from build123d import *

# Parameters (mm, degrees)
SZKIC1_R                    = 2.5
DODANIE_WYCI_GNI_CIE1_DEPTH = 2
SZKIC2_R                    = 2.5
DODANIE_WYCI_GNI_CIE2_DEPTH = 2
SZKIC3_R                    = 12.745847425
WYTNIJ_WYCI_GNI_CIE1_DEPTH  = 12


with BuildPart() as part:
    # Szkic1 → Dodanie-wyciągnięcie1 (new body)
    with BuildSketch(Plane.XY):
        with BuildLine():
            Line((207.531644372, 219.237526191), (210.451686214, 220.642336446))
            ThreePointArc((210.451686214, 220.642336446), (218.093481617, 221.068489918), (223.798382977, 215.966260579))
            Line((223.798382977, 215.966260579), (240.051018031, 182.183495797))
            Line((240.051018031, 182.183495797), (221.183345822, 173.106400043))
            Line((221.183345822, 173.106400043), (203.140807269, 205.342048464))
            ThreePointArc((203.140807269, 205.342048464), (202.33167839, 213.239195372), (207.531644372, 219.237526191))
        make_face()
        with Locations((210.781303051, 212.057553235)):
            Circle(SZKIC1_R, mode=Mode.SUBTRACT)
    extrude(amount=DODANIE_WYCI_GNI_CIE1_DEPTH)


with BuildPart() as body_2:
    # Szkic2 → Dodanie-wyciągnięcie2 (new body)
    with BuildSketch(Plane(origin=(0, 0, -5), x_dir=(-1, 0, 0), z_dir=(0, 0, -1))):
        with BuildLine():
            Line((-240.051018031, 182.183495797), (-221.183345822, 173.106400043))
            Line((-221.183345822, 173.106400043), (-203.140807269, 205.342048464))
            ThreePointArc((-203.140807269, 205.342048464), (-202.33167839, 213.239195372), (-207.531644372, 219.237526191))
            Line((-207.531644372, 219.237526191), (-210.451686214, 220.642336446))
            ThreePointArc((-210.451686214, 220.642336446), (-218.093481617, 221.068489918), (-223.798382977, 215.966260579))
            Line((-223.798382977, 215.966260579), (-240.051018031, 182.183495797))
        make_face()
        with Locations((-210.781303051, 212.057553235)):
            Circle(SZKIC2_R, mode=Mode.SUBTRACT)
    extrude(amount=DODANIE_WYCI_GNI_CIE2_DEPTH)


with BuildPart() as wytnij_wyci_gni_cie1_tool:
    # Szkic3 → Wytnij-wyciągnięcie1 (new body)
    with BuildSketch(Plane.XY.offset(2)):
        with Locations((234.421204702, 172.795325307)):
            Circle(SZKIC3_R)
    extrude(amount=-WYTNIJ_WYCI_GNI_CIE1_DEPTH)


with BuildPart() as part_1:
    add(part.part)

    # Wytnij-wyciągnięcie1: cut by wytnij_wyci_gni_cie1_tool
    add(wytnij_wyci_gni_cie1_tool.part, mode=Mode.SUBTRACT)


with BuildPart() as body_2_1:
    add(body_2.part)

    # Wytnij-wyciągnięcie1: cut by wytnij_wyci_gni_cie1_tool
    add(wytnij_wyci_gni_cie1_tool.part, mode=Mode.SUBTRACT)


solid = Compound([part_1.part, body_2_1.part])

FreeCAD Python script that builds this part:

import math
import FreeCAD as App
import Part
import Sketcher
Q = App.Units.Quantity

doc = App.newDocument("Part")
params = doc.addObject("Spreadsheet::Sheet", "Params")
for row, (alias, value) in enumerate([
    ("sketch1_diameter", "5 mm"),
    ("sketch1_radius", "10 mm"),
    ("pad1_length", "2 mm"),
    ("sketch2_diameter", "5 mm"),
    ("sketch2_radius", "10 mm"),
    ("pad2_length", "2 mm"),
    ("pad3_length", "12 mm"),
], start=1):
    params.set(f"A{row}", alias)
    params.set(f"B{row}", "=" + value)
    params.setAlias(f"B{row}", alias)

body = doc.addObject("PartDesign::Body", "Body")

sketch1 = body.newObject("Sketcher::SketchObject", "Sketch")
sketch1.AttachmentSupport = (doc.getObject("XY_Plane"), [""])
sketch1.MapMode = "FlatFace"
sketch1.addGeometry(Part.LineSegment(App.Vector(210.5, 220.6, 0), App.Vector(207.5, 219.2, 0)), False)
sketch1.addGeometry(Part.ArcOfCircle(Part.Circle(App.Vector(211.9, 210.2, 0), App.Vector(0, 0, 1), 10), math.radians(116), math.radians(209)), False)
sketch1.addGeometry(Part.LineSegment(App.Vector(203.1, 205.3, 0), App.Vector(221.2, 173.1, 0)), False)
sketch1.addGeometry(Part.LineSegment(App.Vector(221.2, 173.1, 0), App.Vector(240.1, 182.2, 0)), False)
sketch1.addGeometry(Part.LineSegment(App.Vector(240.1, 182.2, 0), App.Vector(223.8, 216, 0)), False)
sketch1.addGeometry(Part.ArcOfCircle(Part.Circle(App.Vector(214.8, 211.6, 0), App.Vector(0, 0, 1), 10), math.radians(26), math.radians(116)), False)
sketch1.addGeometry(Part.Circle(App.Vector(210.8, 212.1, 0), App.Vector(0, 0, 1), 2.5), False)
sketch1.addConstraint(Sketcher.Constraint("Tangent", 0, 2, 1, 1))
sketch1.addConstraint(Sketcher.Constraint("Tangent", 1, 2, 2, 1))
sketch1.addConstraint(Sketcher.Constraint("Coincident", 2, 2, 3, 1))
sketch1.addConstraint(Sketcher.Constraint("Coincident", 3, 2, 4, 1))
sketch1.addConstraint(Sketcher.Constraint("Tangent", 4, 2, 5, 1))
sketch1.addConstraint(Sketcher.Constraint("Tangent", 5, 2, 0, 1))
sketch1.addConstraint(Sketcher.Constraint("Equal", 1, 5))
sketch1.addConstraint(Sketcher.Constraint("Parallel", 0, 3))
sketch1.addConstraint(Sketcher.Constraint("Perpendicular", 3, 4))
sketch1.addConstraint(Sketcher.Constraint("Diameter", 6, Q("5 mm")))
sketch1.addConstraint(Sketcher.Constraint("Radius", 1, Q("10 mm")))
sketch1.addConstraint(Sketcher.Constraint("DistanceY", -1, 1, 2, 2, Q("173.1064 mm")))
sketch1.addConstraint(Sketcher.Constraint("DistanceY", 1, 2, 5, 3, Q("6.288902 mm")))
sketch1.addConstraint(Sketcher.Constraint("DistanceX", 0, 2, 2, 2, Q("13.651701 mm")))
sketch1.addConstraint(Sketcher.Constraint("Distance", 0, Q("3.240391 mm")))
sketch1.addConstraint(Sketcher.Constraint("Distance", 3, Q("20.937591 mm")))
sketch1.addConstraint(Sketcher.Constraint("DistanceX", -1, 1, 3, 2, Q("240.051018 mm")))
sketch1.addConstraint(Sketcher.Constraint("DistanceX", 6, 3, 1, 3, Q("1.085652 mm")))
sketch1.addConstraint(Sketcher.Constraint("DistanceY", -1, 1, 6, 3, Q("212.057553 mm")))
sketch1.setExpression("Constraints[9]", "Params.sketch1_diameter")
sketch1.setExpression("Constraints[10]", "Params.sketch1_radius")
pad1 = body.newObject("PartDesign::Pad", "Pad")
pad1.Profile = sketch1
pad1.setExpression("Length", "Params.pad1_length")
body2 = doc.addObject("PartDesign::Body", "Body001")

sketch2 = body2.newObject("Sketcher::SketchObject", "Sketch001")
sketch2.AttachmentSupport = (doc.getObject("XY_Plane001"), [""])
sketch2.MapMode = "FlatFace"
sketch2.AttachmentOffset = App.Placement(App.Vector(0, 0, -5), App.Rotation())
sketch2.addGeometry(Part.LineSegment(App.Vector(240.1, 182.2, 0), App.Vector(221.2, 173.1, 0)), False)
sketch2.addGeometry(Part.LineSegment(App.Vector(221.2, 173.1, 0), App.Vector(203.1, 205.3, 0)), False)
sketch2.addGeometry(Part.ArcOfCircle(Part.Circle(App.Vector(211.9, 210.2, 0), App.Vector(0, 0, 1), 10), math.radians(116), math.radians(209)), False)
sketch2.addGeometry(Part.LineSegment(App.Vector(207.5, 219.2, 0), App.Vector(210.5, 220.6, 0)), False)
sketch2.addGeometry(Part.ArcOfCircle(Part.Circle(App.Vector(214.8, 211.6, 0), App.Vector(0, 0, 1), 10), math.radians(26), math.radians(116)), False)
sketch2.addGeometry(Part.LineSegment(App.Vector(223.8, 216, 0), App.Vector(240.1, 182.2, 0)), False)
sketch2.addGeometry(Part.Circle(App.Vector(210.8, 212.1, 0), App.Vector(0, 0, 1), 2.5), False)
sketch2.addConstraint(Sketcher.Constraint("Coincident", 0, 2, 1, 1))
sketch2.addConstraint(Sketcher.Constraint("Tangent", 1, 2, 2, 2))
sketch2.addConstraint(Sketcher.Constraint("Tangent", 2, 1, 3, 1))
sketch2.addConstraint(Sketcher.Constraint("Tangent", 3, 2, 4, 2))
sketch2.addConstraint(Sketcher.Constraint("Tangent", 4, 1, 5, 1))
sketch2.addConstraint(Sketcher.Constraint("Coincident", 5, 2, 0, 1))
sketch2.addConstraint(Sketcher.Constraint("Equal", 2, 4))
sketch2.addConstraint(Sketcher.Constraint("Parallel", 0, 3))
sketch2.addConstraint(Sketcher.Constraint("Perpendicular", 3, 5))
sketch2.addConstraint(Sketcher.Constraint("Diameter", 6, Q("5 mm")))
sketch2.addConstraint(Sketcher.Constraint("Radius", 2, Q("10 mm")))
sketch2.addConstraint(Sketcher.Constraint("DistanceY", -1, 1, 0, 2, Q("173.1064 mm")))
sketch2.addConstraint(Sketcher.Constraint("DistanceY", 1, 2, 4, 3, Q("6.288902 mm")))
sketch2.addConstraint(Sketcher.Constraint("DistanceX", 2, 1, 0, 2, Q("13.651701 mm")))
sketch2.addConstraint(Sketcher.Constraint("Distance", 0, Q("20.937591 mm")))
sketch2.addConstraint(Sketcher.Constraint("Distance", 3, Q("3.240391 mm")))
sketch2.addConstraint(Sketcher.Constraint("DistanceX", -1, 1, 5, 2, Q("240.051018 mm")))
sketch2.addConstraint(Sketcher.Constraint("DistanceX", 6, 3, 2, 3, Q("1.085652 mm")))
sketch2.addConstraint(Sketcher.Constraint("DistanceY", -1, 1, 6, 3, Q("212.057553 mm")))
sketch2.setExpression("Constraints[9]", "Params.sketch2_diameter")
sketch2.setExpression("Constraints[10]", "Params.sketch2_radius")
pad2 = body2.newObject("PartDesign::Pad", "Pad001")
pad2.Profile = sketch2
pad2.setExpression("Length", "Params.pad2_length")
pad2.Reversed = True
body3 = doc.addObject("PartDesign::Body", "Body002")

sketch3 = body3.newObject("Sketcher::SketchObject", "Sketch002")
sketch3.AttachmentSupport = (doc.getObject("XY_Plane002"), [""])
sketch3.MapMode = "FlatFace"
sketch3.AttachmentOffset = App.Placement(App.Vector(0, 0, 2), App.Rotation())
sketch3.addGeometry(Part.Circle(App.Vector(234, 173, 0), App.Vector(0, 0, 1), 13), False)
sketch3.addConstraint(Sketcher.Constraint("Diameter", 0, Q("25.491695 mm")))
sketch3.addConstraint(Sketcher.Constraint("DistanceX", -1, 1, 0, 3, Q("234.421205 mm")))
sketch3.addConstraint(Sketcher.Constraint("DistanceY", -1, 1, 0, 3, Q("172.795325 mm")))
pad3 = body3.newObject("PartDesign::Pad", "Pad002")
pad3.Profile = sketch3
pad3.setExpression("Length", "Params.pad3_length")
pad3.Reversed = True
doc.recompute()

body4 = doc.addObject("PartDesign::Body", "Body003")
body4.BaseFeature = body3
boolean = body.newObject("PartDesign::Boolean", "Boolean")
boolean.Type = "Cut"
boolean.addObjects([body4])
doc.recompute()

boolean2 = body2.newObject("PartDesign::Boolean", "Boolean001")
boolean2.Type = "Cut"
boolean2.addObjects([body3])

doc.recompute()
